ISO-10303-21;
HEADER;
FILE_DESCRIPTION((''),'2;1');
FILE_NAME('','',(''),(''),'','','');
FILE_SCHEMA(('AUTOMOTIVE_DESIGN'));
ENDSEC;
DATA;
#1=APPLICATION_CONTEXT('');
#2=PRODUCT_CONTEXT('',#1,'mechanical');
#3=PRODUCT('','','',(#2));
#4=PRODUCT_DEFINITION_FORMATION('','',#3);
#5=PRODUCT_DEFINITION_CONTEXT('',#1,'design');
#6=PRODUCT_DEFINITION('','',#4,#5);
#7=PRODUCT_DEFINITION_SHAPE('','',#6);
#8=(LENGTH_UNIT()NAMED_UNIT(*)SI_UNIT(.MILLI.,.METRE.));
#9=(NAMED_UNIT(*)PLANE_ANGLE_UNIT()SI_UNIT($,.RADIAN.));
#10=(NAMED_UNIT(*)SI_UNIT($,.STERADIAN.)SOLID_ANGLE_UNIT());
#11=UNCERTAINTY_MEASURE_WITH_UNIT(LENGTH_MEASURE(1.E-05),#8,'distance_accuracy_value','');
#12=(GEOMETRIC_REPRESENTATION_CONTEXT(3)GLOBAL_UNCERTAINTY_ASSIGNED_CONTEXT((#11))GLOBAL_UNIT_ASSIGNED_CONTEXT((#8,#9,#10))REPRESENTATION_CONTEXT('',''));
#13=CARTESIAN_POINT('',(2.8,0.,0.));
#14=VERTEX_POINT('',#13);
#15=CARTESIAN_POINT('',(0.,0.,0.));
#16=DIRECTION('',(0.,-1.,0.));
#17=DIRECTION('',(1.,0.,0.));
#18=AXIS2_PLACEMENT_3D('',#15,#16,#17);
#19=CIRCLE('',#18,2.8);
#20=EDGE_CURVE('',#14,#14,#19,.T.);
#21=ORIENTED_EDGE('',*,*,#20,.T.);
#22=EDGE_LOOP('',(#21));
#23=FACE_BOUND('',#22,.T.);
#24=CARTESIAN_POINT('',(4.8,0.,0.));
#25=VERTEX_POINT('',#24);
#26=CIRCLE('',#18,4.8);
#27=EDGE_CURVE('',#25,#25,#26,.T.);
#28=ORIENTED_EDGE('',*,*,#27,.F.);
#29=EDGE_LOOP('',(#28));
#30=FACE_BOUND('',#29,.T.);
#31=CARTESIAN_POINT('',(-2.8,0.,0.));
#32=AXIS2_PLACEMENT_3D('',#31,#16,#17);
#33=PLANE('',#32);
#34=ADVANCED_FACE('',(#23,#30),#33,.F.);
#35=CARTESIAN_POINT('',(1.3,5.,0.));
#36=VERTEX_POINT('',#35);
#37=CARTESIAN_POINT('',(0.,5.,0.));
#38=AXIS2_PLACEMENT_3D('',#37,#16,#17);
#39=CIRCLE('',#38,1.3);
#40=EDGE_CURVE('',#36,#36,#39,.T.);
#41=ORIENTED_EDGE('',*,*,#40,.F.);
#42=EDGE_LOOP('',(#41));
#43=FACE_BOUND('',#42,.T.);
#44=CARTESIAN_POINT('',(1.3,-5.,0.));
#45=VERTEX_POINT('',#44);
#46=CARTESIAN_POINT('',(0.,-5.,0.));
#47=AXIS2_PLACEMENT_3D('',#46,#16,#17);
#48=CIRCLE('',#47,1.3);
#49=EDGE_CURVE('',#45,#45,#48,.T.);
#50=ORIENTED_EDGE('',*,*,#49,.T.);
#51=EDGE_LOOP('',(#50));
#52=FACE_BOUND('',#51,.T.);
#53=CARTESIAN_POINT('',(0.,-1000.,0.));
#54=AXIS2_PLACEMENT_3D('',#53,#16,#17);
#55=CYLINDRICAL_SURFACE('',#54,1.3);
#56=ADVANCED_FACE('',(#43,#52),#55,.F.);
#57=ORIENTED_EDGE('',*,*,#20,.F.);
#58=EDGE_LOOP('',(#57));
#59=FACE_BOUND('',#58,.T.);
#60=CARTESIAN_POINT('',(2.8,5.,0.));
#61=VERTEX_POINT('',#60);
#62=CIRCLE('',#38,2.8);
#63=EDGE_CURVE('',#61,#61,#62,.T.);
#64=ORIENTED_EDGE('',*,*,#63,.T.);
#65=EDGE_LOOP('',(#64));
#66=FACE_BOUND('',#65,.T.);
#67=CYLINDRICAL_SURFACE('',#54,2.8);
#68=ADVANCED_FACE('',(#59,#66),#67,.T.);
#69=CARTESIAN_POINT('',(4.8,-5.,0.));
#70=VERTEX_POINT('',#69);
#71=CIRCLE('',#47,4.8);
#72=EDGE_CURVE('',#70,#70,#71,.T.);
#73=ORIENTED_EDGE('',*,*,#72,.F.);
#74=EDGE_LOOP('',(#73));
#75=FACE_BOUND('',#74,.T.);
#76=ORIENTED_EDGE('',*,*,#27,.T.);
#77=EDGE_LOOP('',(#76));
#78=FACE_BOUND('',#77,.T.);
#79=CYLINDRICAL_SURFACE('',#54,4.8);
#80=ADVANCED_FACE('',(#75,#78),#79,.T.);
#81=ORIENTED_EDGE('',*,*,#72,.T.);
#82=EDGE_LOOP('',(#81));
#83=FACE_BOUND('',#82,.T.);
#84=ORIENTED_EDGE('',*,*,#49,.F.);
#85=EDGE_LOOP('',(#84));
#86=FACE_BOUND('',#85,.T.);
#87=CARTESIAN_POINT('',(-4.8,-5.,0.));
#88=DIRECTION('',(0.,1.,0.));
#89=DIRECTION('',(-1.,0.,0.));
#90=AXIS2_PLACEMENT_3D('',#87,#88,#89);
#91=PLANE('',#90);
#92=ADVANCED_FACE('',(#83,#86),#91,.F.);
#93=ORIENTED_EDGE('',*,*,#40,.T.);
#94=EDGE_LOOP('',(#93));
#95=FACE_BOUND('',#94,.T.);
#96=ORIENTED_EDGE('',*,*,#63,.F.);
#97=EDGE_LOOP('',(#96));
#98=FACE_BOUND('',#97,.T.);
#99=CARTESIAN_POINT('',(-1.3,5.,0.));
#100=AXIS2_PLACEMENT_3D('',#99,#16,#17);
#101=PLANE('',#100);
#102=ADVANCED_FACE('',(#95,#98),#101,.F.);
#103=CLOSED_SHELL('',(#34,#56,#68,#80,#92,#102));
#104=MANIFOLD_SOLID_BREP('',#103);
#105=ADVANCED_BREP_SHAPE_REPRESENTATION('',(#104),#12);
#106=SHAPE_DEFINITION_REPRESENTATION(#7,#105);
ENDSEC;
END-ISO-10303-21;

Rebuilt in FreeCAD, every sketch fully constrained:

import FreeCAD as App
import Part
import Sketcher
Q = App.Units.Quantity


def add_polygon(sketch, points):
    """Adds a closed chain of lines whose ends are joined by coincident constraints."""
    first, n = sketch.GeometryCount, len(points)
    for a, b in zip(points, points[1:] + points[:1]):
        sketch.addGeometry(Part.LineSegment(App.Vector(*a, 0), App.Vector(*b, 0)), False)
    for i in range(n):
        sketch.addConstraint(Sketcher.Constraint("Coincident", first + i, 2, first + (i + 1) % n, 1))

doc = App.newDocument("Part")
params = doc.addObject("Spreadsheet::Sheet", "Params")
for row, (alias, value) in enumerate([
    ("sketch1_width", "2 mm"),
    ("sketch1_height", "5 mm"),
    ("sketch1_width2", "1.5 mm"),
    ("revolution_angle", "360 deg"),
], start=1):
    params.set(f"A{row}", alias)
    params.set(f"B{row}", "=" + value)
    params.setAlias(f"B{row}", alias)

body = doc.addObject("PartDesign::Body", "Body")

# Sketch on XY plane
sketch1 = doc.addObject("Sketcher::SketchObject", "Sketch")
body.addObject(sketch1)
sketch1.AttachmentSupport = (doc.XY_Plane, [""])
sketch1.MapMode = "FlatFace"
add_polygon(sketch1, [(-1.3, 5), (-2.8, 5), (-2.8, 0), (-4.8, 0), (-4.8, -5), (-1.3, -5)])  # lines 0-5
sketch1.addConstraint(Sketcher.Constraint("Horizontal", 0))
sketch1.addConstraint(Sketcher.Constraint("Vertical", 1))
sketch1.addConstraint(Sketcher.Constraint("Horizontal", 2))
sketch1.addConstraint(Sketcher.Constraint("Vertical", 3))
sketch1.addConstraint(Sketcher.Constraint("Horizontal", 4))
sketch1.addConstraint(Sketcher.Constraint("Vertical", 5))
sketch1.addConstraint(Sketcher.Constraint("PointOnObject", 1, 2, -1))
sketch1.addConstraint(Sketcher.Constraint("Equal", 1, 3))
sketch1.addConstraint(Sketcher.Constraint("DistanceX", 2, 2, 2, 1, Q("2 mm")))
sketch1.addConstraint(Sketcher.Constraint("DistanceY", 1, 2, 1, 1, Q("5 mm")))
sketch1.addConstraint(Sketcher.Constraint("DistanceX", 0, 2, 0, 1, Q("1.5 mm")))
sketch1.addConstraint(Sketcher.Constraint("DistanceX", 0, 2, -1, 1, Q("2.8 mm")))
sketch1.setExpression("Constraints[14]", "Params.sketch1_width")
sketch1.setExpression("Constraints[15]", "Params.sketch1_height")
sketch1.setExpression("Constraints[16]", "Params.sketch1_width2")
revolution = doc.addObject("PartDesign::Revolution", "Revolution")
body.addObject(revolution)
revolution.Profile = sketch1
revolution.ReferenceAxis = (sketch1, ["V_Axis"])
revolution.setExpression("Angle", "Params.revolution_angle")

doc.recompute()
